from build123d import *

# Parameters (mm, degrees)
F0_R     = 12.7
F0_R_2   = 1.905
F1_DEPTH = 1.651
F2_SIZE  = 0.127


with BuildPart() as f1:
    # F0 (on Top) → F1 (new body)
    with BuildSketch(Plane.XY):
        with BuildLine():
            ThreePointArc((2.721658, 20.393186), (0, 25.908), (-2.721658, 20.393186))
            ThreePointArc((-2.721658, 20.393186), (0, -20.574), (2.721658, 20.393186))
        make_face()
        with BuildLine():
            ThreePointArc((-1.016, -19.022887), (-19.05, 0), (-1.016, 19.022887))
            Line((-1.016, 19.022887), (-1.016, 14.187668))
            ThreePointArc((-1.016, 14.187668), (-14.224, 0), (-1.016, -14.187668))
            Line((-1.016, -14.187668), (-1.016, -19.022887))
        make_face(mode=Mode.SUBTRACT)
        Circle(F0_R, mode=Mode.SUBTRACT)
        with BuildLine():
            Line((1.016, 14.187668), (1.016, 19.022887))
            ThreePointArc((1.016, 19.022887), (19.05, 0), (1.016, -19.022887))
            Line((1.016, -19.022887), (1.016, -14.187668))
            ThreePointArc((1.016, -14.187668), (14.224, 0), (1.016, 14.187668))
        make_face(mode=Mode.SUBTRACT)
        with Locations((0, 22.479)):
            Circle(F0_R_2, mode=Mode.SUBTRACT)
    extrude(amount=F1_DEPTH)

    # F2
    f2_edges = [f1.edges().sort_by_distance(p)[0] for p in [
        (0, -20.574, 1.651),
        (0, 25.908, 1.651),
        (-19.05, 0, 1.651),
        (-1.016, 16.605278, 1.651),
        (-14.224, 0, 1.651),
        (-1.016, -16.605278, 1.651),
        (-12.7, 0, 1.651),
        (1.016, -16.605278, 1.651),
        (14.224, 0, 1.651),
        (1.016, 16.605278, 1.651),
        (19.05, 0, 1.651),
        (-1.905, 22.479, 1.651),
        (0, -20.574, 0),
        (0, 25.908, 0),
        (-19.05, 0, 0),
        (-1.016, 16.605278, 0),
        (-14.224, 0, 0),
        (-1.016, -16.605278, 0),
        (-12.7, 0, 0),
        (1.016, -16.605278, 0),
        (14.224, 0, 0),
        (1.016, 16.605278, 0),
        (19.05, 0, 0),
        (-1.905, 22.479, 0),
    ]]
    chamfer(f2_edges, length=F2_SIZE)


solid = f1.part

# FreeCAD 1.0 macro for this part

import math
import FreeCAD as App
import Part
import Sketcher
from FreeCAD import Vector
Q = App.Units.Quantity


def edges_at(feature, points):
    """Names of the edges that pass closest to the given points."""
    edges = feature.Shape.Edges
    near = lambda p: min(range(len(edges)), key=lambda i: edges[i].distToShape(Part.Vertex(*p))[0])
    return sorted({f"Edge{near(p) + 1}" for p in points})

doc = App.newDocument("Part")
body = doc.addObject("PartDesign::Body", "Body")

sketch1 = doc.addObject("Sketcher::SketchObject", "Sketch")
body.addObject(sketch1)
sketch1.AttachmentSupport = (doc.XY_Plane, [""])
sketch1.MapMode = "FlatFace"
sketch1.addGeometry(Part.ArcOfCircle(Part.Circle(Vector(0, 22.5, 0), Vector(0, 0, 1), 3.4), math.radians(-37), math.radians(217)), False)
sketch1.addGeometry(Part.ArcOfCircle(Part.Circle(Vector(0, 0, 0), Vector(0, 0, 1), 20.6), math.radians(98), math.radians(442)), False)
sketch1.addGeometry(Part.LineSegment(Vector(-1, -14.2, 0), Vector(-1, -19, 0)), False)
sketch1.addGeometry(Part.ArcOfCircle(Part.Circle(Vector(0, 0, 0), Vector(0, 0, 1), 19), math.radians(93), math.radians(267)), False)
sketch1.addGeometry(Part.LineSegment(Vector(-1, 19, 0), Vector(-1, 14.2, 0)), False)
sketch1.addGeometry(Part.ArcOfCircle(Part.Circle(Vector(0, 0, 0), Vector(0, 0, 1), 14.2), math.radians(94), math.radians(266)), False)
sketch1.addGeometry(Part.Circle(Vector(0, 0, 0), Vector(0, 0, 1), 12.7), False)
sketch1.addGeometry(Part.ArcOfCircle(Part.Circle(Vector(0, 0, 0), Vector(0, 0, 1), 14.2), math.radians(-86), math.radians(86)), False)
sketch1.addGeometry(Part.LineSegment(Vector(1, 14.2, 0), Vector(1, 19, 0)), False)
sketch1.addGeometry(Part.ArcOfCircle(Part.Circle(Vector(0, 0, 0), Vector(0, 0, 1), 19), math.radians(-87), math.radians(87)), False)
sketch1.addGeometry(Part.LineSegment(Vector(1, -19, 0), Vector(1, -14.2, 0)), False)
sketch1.addGeometry(Part.Circle(Vector(0, 22.5, 0), Vector(0, 0, 1), 1.9), False)
sketch1.addConstraint(Sketcher.Constraint("Coincident", 0, 1, 1, 2))
sketch1.addConstraint(Sketcher.Constraint("Coincident", 1, 1, 0, 2))
sketch1.addConstraint(Sketcher.Constraint("Coincident", 2, 2, 3, 2))
sketch1.addConstraint(Sketcher.Constraint("Coincident", 3, 1, 4, 1))
sketch1.addConstraint(Sketcher.Constraint("Coincident", 4, 2, 5, 1))
sketch1.addConstraint(Sketcher.Constraint("Coincident", 5, 2, 2, 1))
sketch1.addConstraint(Sketcher.Constraint("Coincident", 7, 2, 8, 1))
sketch1.addConstraint(Sketcher.Constraint("Coincident", 8, 2, 9, 2))
sketch1.addConstraint(Sketcher.Constraint("Coincident", 9, 1, 10, 1))
sketch1.addConstraint(Sketcher.Constraint("Coincident", 10, 2, 7, 1))
sketch1.addConstraint(Sketcher.Constraint("Vertical", 2))
sketch1.addConstraint(Sketcher.Constraint("Vertical", 4))
sketch1.addConstraint(Sketcher.Constraint("Vertical", 8))
sketch1.addConstraint(Sketcher.Constraint("Vertical", 10))
sketch1.addConstraint(Sketcher.Constraint("Coincident", 1, 3, -1, 1))
sketch1.addConstraint(Sketcher.Constraint("Coincident", 3, 3, -1, 1))
sketch1.addConstraint(Sketcher.Constraint("Coincident", 5, 3, -1, 1))
sketch1.addConstraint(Sketcher.Constraint("Coincident", 6, 3, -1, 1))
sketch1.addConstraint(Sketcher.Constraint("Coincident", 7, 3, -1, 1))
sketch1.addConstraint(Sketcher.Constraint("Coincident", 9, 3, -1, 1))
sketch1.addConstraint(Sketcher.Constraint("Coincident", 11, 3, 0, 3))
sketch1.addConstraint(Sketcher.Constraint("Equal", 5, 7))
sketch1.addConstraint(Sketcher.Constraint("Equal", 3, 9))
sketch1.addConstraint(Sketcher.Constraint("PointOnObject", 0, 3, -2))
sketch1.addConstraint(Sketcher.Constraint("Horizontal", 4, 2, 7, 2))
sketch1.addConstraint(Sketcher.Constraint("Horizontal", 2, 2, 9, 1))
sketch1.addConstraint(Sketcher.Constraint("Vertical", 2, 2, 3, 1))
sketch1.addConstraint(Sketcher.Constraint("Diameter", 6, Q("1 in")))
sketch1.addConstraint(Sketcher.Constraint("Diameter", 11, Q("0.15 in")))
sketch1.addConstraint(Sketcher.Constraint("Radius", 1, Q("0.81 in")))
sketch1.addConstraint(Sketcher.Constraint("Radius", 3, Q("0.75 in")))
sketch1.addConstraint(Sketcher.Constraint("Radius", 5, Q("0.56 in")))
sketch1.addConstraint(Sketcher.Constraint("Radius", 0, Q("0.135 in")))
sketch1.addConstraint(Sketcher.Constraint("DistanceX", 2, 2, -1, 1, Q("0.04 in")))
sketch1.addConstraint(Sketcher.Constraint("DistanceY", -1, 1, 0, 3, Q("0.885 in")))
pad1 = doc.addObject("PartDesign::Pad", "Pad")
body.addObject(pad1)
pad1.Profile = sketch1
pad1.Length = Q("0.065 in")
doc.recompute()

chamfer = doc.addObject("PartDesign::Chamfer", "Chamfer")
body.addObject(chamfer)
chamfer.Base = (pad1, edges_at(pad1, [
    (0, -20.574, 1.651),
    (0, 25.908, 1.651),
    (-19.05, 0, 1.651),
    (-1.016, 16.605, 1.651),
    (-14.224, 0, 1.651),
    (-1.016, -16.605, 1.651),
    (-12.7, 0, 1.651),
    (1.016, -16.605, 1.651),
    (14.224, 0, 1.651),
    (1.016, 16.605, 1.651),
    (19.05, 0, 1.651),
    (-1.905, 22.479, 1.651),
    (0, -20.574, 0),
    (0, 25.908, 0),
    (-19.05, 0, 0),
    (-1.016, 16.605, 0),
    (-14.224, 0, 0),
    (-1.016, -16.605, 0),
    (-12.7, 0, 0),
    (1.016, -16.605, 0),
    (14.224, 0, 0),
    (1.016, 16.605, 0),
    (19.05, 0, 0),
    (-1.905, 22.479, 0),
]))
chamfer.Size = Q("0.005 in")

doc.recompute()
